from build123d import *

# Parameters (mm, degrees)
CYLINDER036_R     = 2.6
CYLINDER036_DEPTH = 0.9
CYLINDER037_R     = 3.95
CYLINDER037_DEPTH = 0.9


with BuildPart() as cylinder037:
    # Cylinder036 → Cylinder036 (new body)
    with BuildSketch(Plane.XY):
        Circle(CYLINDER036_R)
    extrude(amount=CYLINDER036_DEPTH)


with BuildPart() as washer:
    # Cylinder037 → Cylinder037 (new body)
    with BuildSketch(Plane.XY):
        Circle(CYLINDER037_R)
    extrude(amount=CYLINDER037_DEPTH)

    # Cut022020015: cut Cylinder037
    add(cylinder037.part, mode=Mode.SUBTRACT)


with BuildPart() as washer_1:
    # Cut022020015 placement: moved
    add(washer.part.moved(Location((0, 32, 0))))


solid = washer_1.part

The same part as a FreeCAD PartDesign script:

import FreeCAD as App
import Part
import Sketcher

V = App.Vector

doc = App.newDocument("Part")
body = doc.addObject("PartDesign::Body", "Body")

# Sketch on XY plane
sketch1 = body.newObject("Sketcher::SketchObject", "Sketch")
sketch1.AttachmentSupport = (doc.getObject("XY_Plane"), [""])
sketch1.MapMode = "FlatFace"
sketch1.addGeometry(Part.Circle(V(0, 0, 0), V(0, 0, 1), 2.6), False)
sketch1.addConstraint([
    Sketcher.Constraint("Coincident", 0, 3, -1, 1),
    Sketcher.Constraint("Diameter", 0, 5.2),
])
pad1 = body.newObject("PartDesign::Pad", "Pad")
pad1.Profile = sketch1
pad1.Length = 0.9
body2 = doc.addObject("PartDesign::Body", "Body001")

# Sketch on XY plane
sketch2 = body2.newObject("Sketcher::SketchObject", "Sketch001")
sketch2.AttachmentSupport = (doc.getObject("XY_Plane001"), [""])
sketch2.MapMode = "FlatFace"
sketch2.addGeometry(Part.Circle(V(0, 0, 0), V(0, 0, 1), 4), False)
sketch2.addConstraint([
    Sketcher.Constraint("Coincident", 0, 3, -1, 1),
    Sketcher.Constraint("Diameter", 0, 7.9),
])
pad2 = body2.newObject("PartDesign::Pad", "Pad001")
pad2.Profile = sketch2
pad2.Length = 0.9
doc.recompute()

boolean = body2.newObject("PartDesign::Boolean", "Boolean")
boolean.Type = "Cut"
boolean.addObjects([body])
body3 = doc.addObject("PartDesign::Body", "Body002")
doc.recompute()

body2.Placement = App.Placement(V(0, 32, 0), App.Rotation(V(0, 0, 1), 0))
boolean2 = body3.newObject("PartDesign::Boolean", "Boolean001")
boolean2.Type = "Fuse"
boolean2.addObjects([body2])

doc.recompute()
